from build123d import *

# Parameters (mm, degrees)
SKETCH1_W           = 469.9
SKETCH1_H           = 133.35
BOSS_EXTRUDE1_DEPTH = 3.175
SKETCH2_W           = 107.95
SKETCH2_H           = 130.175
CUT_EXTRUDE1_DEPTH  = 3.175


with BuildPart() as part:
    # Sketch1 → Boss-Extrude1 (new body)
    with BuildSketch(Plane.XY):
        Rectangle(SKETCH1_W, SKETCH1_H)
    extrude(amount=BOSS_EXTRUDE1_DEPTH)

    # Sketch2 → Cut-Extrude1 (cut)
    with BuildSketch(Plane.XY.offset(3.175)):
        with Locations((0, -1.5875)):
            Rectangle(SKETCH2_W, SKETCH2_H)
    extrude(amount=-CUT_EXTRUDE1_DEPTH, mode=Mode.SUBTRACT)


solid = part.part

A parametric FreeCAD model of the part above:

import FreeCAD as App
import Part
import Sketcher
from FreeCAD import Vector
Q = App.Units.Quantity

doc = App.newDocument("Part")
params = doc.addObject("Spreadsheet::Sheet", "Params")
for row, (alias, value) in enumerate([
    ("sketch1_width", "18.5 in"),
    ("sketch1_height", "5.25 in"),
    ("pad1_length", "0.125 in"),
    ("sketch2_width", "4.25 in"),
    ("sketch2_height", "5.125 in"),
    ("pocket1_length", "0.125 in"),
], start=1):
    params.set(f"A{row}", alias)
    params.set(f"B{row}", "=" + value)
    params.setAlias(f"B{row}", alias)

body = doc.addObject("PartDesign::Body", "Body")

# Sketch on XY plane
sketch1 = body.newObject("Sketcher::SketchObject", "Sketch")
sketch1.AttachmentSupport = (doc.getObject("XY_Plane"), [""])
sketch1.MapMode = "FlatFace"
sketch1.addGeometry(Part.LineSegment(Vector(-234.95, 66.675, 0), Vector(-234.95, -66.675, 0)), False)
sketch1.addGeometry(Part.LineSegment(Vector(-234.95, -66.675, 0), Vector(234.95, -66.675, 0)), False)
sketch1.addGeometry(Part.LineSegment(Vector(234.95, -66.675, 0), Vector(234.95, 66.675, 0)), False)
sketch1.addGeometry(Part.LineSegment(Vector(234.95, 66.675, 0), Vector(-234.95, 66.675, 0)), False)
sketch1.addConstraint(Sketcher.Constraint("Coincident", 0, 2, 1, 1))
sketch1.addConstraint(Sketcher.Constraint("Coincident", 1, 2, 2, 1))
sketch1.addConstraint(Sketcher.Constraint("Coincident", 2, 2, 3, 1))
sketch1.addConstraint(Sketcher.Constraint("Coincident", 3, 2, 0, 1))
sketch1.addConstraint(Sketcher.Constraint("Vertical", 0))
sketch1.addConstraint(Sketcher.Constraint("Horizontal", 1))
sketch1.addConstraint(Sketcher.Constraint("Vertical", 2))
sketch1.addConstraint(Sketcher.Constraint("Horizontal", 3))
sketch1.addConstraint(Sketcher.Constraint("Symmetric", 0, 2, 2, 2, -1, 1))
sketch1.addConstraint(Sketcher.Constraint("DistanceX", 1, 1, 1, 2, Q("18.5 in")))
sketch1.addConstraint(Sketcher.Constraint("DistanceY", 0, 2, 0, 1, Q("5.25 in")))
sketch1.setExpression("Constraints[9]", "Params.sketch1_width")
sketch1.setExpression("Constraints[10]", "Params.sketch1_height")
pad1 = body.newObject("PartDesign::Pad", "Pad")
pad1.Profile = sketch1
pad1.setExpression("Length", "Params.pad1_length")

# Sketch on XY plane
sketch2 = body.newObject("Sketcher::SketchObject", "Sketch001")
sketch2.AttachmentSupport = (doc.getObject("XY_Plane"), [""])
sketch2.MapMode = "FlatFace"
sketch2.AttachmentOffset = App.Placement(Vector(0, 0, 0.125 * 25.4), App.Rotation())
sketch2.addGeometry(Part.LineSegment(Vector(-53.975, 63.5, 0), Vector(-53.975, -66.675, 0)), False)
sketch2.addGeometry(Part.LineSegment(Vector(-53.975, -66.675, 0), Vector(53.975, -66.675, 0)), False)
sketch2.addGeometry(Part.LineSegment(Vector(53.975, -66.675, 0), Vector(53.975, 63.5, 0)), False)
sketch2.addGeometry(Part.LineSegment(Vector(53.975, 63.5, 0), Vector(-53.975, 63.5, 0)), False)
sketch2.addConstraint(Sketcher.Constraint("Coincident", 0, 2, 1, 1))
sketch2.addConstraint(Sketcher.Constraint("Coincident", 1, 2, 2, 1))
sketch2.addConstraint(Sketcher.Constraint("Coincident", 2, 2, 3, 1))
sketch2.addConstraint(Sketcher.Constraint("Coincident", 3, 2, 0, 1))
sketch2.addConstraint(Sketcher.Constraint("Vertical", 0))
sketch2.addConstraint(Sketcher.Constraint("Horizontal", 1))
sketch2.addConstraint(Sketcher.Constraint("Vertical", 2))
sketch2.addConstraint(Sketcher.Constraint("Horizontal", 3))
sketch2.addConstraint(Sketcher.Constraint("DistanceX", 1, 1, 1, 2, Q("4.25 in")))
sketch2.addConstraint(Sketcher.Constraint("DistanceY", -1, 1, 2, 2, Q("2.5 in")))
sketch2.addConstraint(Sketcher.Constraint("DistanceY", 0, 2, 0, 1, Q("5.125 in")))
sketch2.addConstraint(Sketcher.Constraint("DistanceX", 0, 2, -1, 1, Q("2.125 in")))
sketch2.setExpression("Constraints[8]", "Params.sketch2_width")
sketch2.setExpression("Constraints[10]", "Params.sketch2_height")
pocket1 = body.newObject("PartDesign::Pocket", "Pocket")
pocket1.Profile = sketch2
pocket1.setExpression("Length", "Params.pocket1_length")

doc.recompute()
